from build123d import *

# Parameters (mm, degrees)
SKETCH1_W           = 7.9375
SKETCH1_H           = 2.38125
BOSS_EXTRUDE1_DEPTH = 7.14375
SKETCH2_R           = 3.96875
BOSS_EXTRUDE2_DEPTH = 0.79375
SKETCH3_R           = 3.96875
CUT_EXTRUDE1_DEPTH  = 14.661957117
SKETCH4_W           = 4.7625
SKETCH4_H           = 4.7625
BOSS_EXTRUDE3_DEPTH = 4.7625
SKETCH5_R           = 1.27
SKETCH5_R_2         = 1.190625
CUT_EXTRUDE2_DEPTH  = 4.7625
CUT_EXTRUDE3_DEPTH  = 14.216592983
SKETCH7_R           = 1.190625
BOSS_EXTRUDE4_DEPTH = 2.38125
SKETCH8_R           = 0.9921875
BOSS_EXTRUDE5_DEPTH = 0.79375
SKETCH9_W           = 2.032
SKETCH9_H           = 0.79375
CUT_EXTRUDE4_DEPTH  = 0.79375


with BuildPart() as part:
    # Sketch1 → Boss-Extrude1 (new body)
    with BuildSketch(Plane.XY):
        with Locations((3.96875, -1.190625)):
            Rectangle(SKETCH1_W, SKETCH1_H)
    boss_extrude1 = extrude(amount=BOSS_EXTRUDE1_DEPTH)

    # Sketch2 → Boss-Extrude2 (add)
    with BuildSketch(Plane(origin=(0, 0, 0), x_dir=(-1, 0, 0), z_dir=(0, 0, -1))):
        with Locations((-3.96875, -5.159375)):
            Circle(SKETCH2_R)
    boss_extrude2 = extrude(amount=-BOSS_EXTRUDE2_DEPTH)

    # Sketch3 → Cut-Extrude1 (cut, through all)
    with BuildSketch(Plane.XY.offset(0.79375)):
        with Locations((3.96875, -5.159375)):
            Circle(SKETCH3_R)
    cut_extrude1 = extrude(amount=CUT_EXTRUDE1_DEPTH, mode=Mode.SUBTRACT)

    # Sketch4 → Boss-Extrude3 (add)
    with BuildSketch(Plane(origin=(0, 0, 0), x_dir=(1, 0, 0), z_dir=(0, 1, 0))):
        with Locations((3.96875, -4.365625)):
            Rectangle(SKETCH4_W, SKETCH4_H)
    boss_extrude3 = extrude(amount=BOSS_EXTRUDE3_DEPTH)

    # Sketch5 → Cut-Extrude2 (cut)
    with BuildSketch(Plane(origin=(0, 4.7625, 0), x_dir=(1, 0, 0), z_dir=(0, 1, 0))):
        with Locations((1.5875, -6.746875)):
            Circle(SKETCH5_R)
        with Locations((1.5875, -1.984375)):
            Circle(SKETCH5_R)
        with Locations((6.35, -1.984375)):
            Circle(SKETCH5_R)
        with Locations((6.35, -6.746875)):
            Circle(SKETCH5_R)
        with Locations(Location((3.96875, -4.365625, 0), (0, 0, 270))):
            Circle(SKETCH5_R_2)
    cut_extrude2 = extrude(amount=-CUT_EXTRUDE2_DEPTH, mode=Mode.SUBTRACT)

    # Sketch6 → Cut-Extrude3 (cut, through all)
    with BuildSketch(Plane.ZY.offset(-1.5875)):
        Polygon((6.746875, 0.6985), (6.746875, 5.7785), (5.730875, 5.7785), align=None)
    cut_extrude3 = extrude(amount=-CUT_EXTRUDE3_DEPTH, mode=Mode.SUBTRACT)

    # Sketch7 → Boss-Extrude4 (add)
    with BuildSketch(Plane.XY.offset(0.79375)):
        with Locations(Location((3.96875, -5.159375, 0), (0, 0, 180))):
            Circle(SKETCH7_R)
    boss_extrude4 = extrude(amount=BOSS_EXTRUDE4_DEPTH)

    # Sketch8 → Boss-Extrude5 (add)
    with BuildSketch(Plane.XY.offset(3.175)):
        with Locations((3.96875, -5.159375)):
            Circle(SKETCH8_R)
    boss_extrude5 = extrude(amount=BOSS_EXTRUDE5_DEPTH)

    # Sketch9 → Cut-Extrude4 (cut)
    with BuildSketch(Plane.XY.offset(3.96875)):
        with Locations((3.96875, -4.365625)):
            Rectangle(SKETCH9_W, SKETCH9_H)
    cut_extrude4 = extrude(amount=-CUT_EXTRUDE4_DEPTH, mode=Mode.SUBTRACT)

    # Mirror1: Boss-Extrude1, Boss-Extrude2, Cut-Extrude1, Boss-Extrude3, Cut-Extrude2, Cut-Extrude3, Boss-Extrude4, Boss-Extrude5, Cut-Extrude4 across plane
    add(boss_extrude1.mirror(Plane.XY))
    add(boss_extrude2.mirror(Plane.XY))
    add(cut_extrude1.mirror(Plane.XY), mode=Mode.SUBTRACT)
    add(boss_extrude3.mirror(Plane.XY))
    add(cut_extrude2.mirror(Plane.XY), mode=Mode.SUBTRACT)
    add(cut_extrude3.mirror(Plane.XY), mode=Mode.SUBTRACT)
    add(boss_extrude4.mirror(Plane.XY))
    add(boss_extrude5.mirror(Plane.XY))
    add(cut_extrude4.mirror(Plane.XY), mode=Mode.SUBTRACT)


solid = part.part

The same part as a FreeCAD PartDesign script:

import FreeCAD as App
import Part
import Sketcher
Q = App.Units.Quantity

doc = App.newDocument("Part")
body = doc.addObject("PartDesign::Body", "Body")

sketch1 = doc.addObject("Sketcher::SketchObject", "Sketch")
body.addObject(sketch1)
sketch1.AttachmentSupport = (doc.XY_Plane, [""])
sketch1.MapMode = "FlatFace"
sketch1.addGeometry(Part.LineSegment(App.Vector(0, 0, 0), App.Vector(0, -2.38125, 0)), False)
sketch1.addGeometry(Part.LineSegment(App.Vector(0, -2.38125, 0), App.Vector(7.9375, -2.38125, 0)), False)
sketch1.addGeometry(Part.LineSegment(App.Vector(7.9375, -2.38125, 0), App.Vector(7.9375, 0, 0)), False)
sketch1.addGeometry(Part.LineSegment(App.Vector(7.9375, 0, 0), App.Vector(0, 0, 0)), False)
sketch1.addConstraint(Sketcher.Constraint("Coincident", 0, 2, 1, 1))
sketch1.addConstraint(Sketcher.Constraint("Coincident", 1, 2, 2, 1))
sketch1.addConstraint(Sketcher.Constraint("Coincident", 2, 2, 3, 1))
sketch1.addConstraint(Sketcher.Constraint("Coincident", 3, 2, 0, 1))
sketch1.addConstraint(Sketcher.Constraint("Vertical", 0))
sketch1.addConstraint(Sketcher.Constraint("Horizontal", 1))
sketch1.addConstraint(Sketcher.Constraint("Vertical", 2))
sketch1.addConstraint(Sketcher.Constraint("Horizontal", 3))
sketch1.addConstraint(Sketcher.Constraint("Coincident", 3, 2, -1, 1))
sketch1.addConstraint(Sketcher.Constraint("DistanceX", 1, 1, 1, 2, Q("0.3125 in")))
sketch1.addConstraint(Sketcher.Constraint("DistanceY", 0, 2, 0, 1, Q("0.09375 in")))
pad1 = doc.addObject("PartDesign::Pad", "Pad")
body.addObject(pad1)
pad1.Profile = sketch1
pad1.Length = Q("0.28125 in")

sketch2 = doc.addObject("Sketcher::SketchObject", "Sketch001")
body.addObject(sketch2)
sketch2.AttachmentSupport = (doc.XY_Plane, [""])
sketch2.MapMode = "FlatFace"
sketch2.addGeometry(Part.Circle(App.Vector(3.96875, -5.159375, 0), App.Vector(0, 0, 1), 3.96875), False)
sketch2.addConstraint(Sketcher.Constraint("Diameter", 0, Q("0.3125 in")))
sketch2.addConstraint(Sketcher.Constraint("DistanceX", -1, 1, 0, 3, Q("0.15625 in")))
sketch2.addConstraint(Sketcher.Constraint("DistanceY", 0, 3, -1, 1, Q("0.203125 in")))
pad2 = doc.addObject("PartDesign::Pad", "Pad001")
body.addObject(pad2)
pad2.Profile = sketch2
pad2.Length = Q("0.03125 in")

sketch3 = doc.addObject("Sketcher::SketchObject", "Sketch002")
body.addObject(sketch3)
sketch3.AttachmentSupport = (doc.XY_Plane, [""])
sketch3.MapMode = "FlatFace"
sketch3.AttachmentOffset = App.Placement(App.Vector(0, 0, 0.03125 * 25.4), App.Rotation())
sketch3.addGeometry(Part.Circle(App.Vector(3.96875, -5.159375, 0), App.Vector(0, 0, 1), 3.96875), False)
sketch3.addConstraint(Sketcher.Constraint("Diameter", 0, Q("0.3125 in")))
sketch3.addConstraint(Sketcher.Constraint("DistanceX", -1, 1, 0, 3, Q("0.15625 in")))
sketch3.addConstraint(Sketcher.Constraint("DistanceY", 0, 3, -1, 1, Q("0.203125 in")))
pocket1 = doc.addObject("PartDesign::Pocket", "Pocket")
body.addObject(pocket1)
pocket1.Profile = sketch3
pocket1.Type = "ThroughAll"
pocket1.Reversed = True

sketch4 = doc.addObject("Sketcher::SketchObject", "Sketch003")
body.addObject(sketch4)
sketch4.AttachmentSupport = (doc.XZ_Plane, [""])
sketch4.MapMode = "FlatFace"
sketch4.addGeometry(Part.LineSegment(App.Vector(1.5875, 1.984375, 0), App.Vector(1.5875, 6.746875, 0)), False)
sketch4.addGeometry(Part.LineSegment(App.Vector(1.5875, 6.746875, 0), App.Vector(6.35, 6.746875, 0)), False)
sketch4.addGeometry(Part.LineSegment(App.Vector(6.35, 6.746875, 0), App.Vector(6.35, 1.984375, 0)), False)
sketch4.addGeometry(Part.LineSegment(App.Vector(6.35, 1.984375, 0), App.Vector(1.5875, 1.984375, 0)), False)
sketch4.addConstraint(Sketcher.Constraint("Coincident", 0, 2, 1, 1))
sketch4.addConstraint(Sketcher.Constraint("Coincident", 1, 2, 2, 1))
sketch4.addConstraint(Sketcher.Constraint("Coincident", 2, 2, 3, 1))
sketch4.addConstraint(Sketcher.Constraint("Coincident", 3, 2, 0, 1))
sketch4.addConstraint(Sketcher.Constraint("Vertical", 0))
sketch4.addConstraint(Sketcher.Constraint("Horizontal", 1))
sketch4.addConstraint(Sketcher.Constraint("Vertical", 2))
sketch4.addConstraint(Sketcher.Constraint("Horizontal", 3))
sketch4.addConstraint(Sketcher.Constraint("Equal", 3, 0))
sketch4.addConstraint(Sketcher.Constraint("DistanceX", 1, 1, 1, 2, Q("0.1875 in")))
sketch4.addConstraint(Sketcher.Constraint("DistanceX", -1, 1, 1, 2, Q("0.25 in")))
sketch4.addConstraint(Sketcher.Constraint("DistanceY", -1, 1, 0, 2, Q("0.265625 in")))
pad3 = doc.addObject("PartDesign::Pad", "Pad002")
body.addObject(pad3)
pad3.Profile = sketch4
pad3.Length = Q("0.1875 in")
pad3.Reversed = True

sketch5 = doc.addObject("Sketcher::SketchObject", "Sketch004")
body.addObject(sketch5)
sketch5.AttachmentSupport = (doc.XZ_Plane, [""])
sketch5.MapMode = "FlatFace"
sketch5.AttachmentOffset = App.Placement(App.Vector(0, 0, -0.1875 * 25.4), App.Rotation())
sketch5.addGeometry(Part.Circle(App.Vector(1.5875, 6.746875, 0), App.Vector(0, 0, 1), 1.27), False)
sketch5.addGeometry(Part.Circle(App.Vector(1.5875, 1.984375, 0), App.Vector(0, 0, 1), 1.27), False)
sketch5.addGeometry(Part.Circle(App.Vector(6.35, 1.984375, 0), App.Vector(0, 0, 1), 1.27), False)
sketch5.addGeometry(Part.Circle(App.Vector(6.35, 6.746875, 0), App.Vector(0, 0, 1), 1.27), False)
sketch5.addGeometry(Part.Circle(App.Vector(3.96875, 4.365625, 0), App.Vector(0, 0, 1), 1.190625), False)
sketch5.addConstraint(Sketcher.Constraint("Equal", 0, 1))
sketch5.addConstraint(Sketcher.Constraint("Equal", 1, 2))
sketch5.addConstraint(Sketcher.Constraint("Equal", 2, 3))
sketch5.addConstraint(Sketcher.Constraint("Horizontal", 1, 3, 2, 3))
sketch5.addConstraint(Sketcher.Constraint("Horizontal", 0, 3, 3, 3))
sketch5.addConstraint(Sketcher.Constraint("Vertical", 0, 3, 1, 3))
sketch5.addConstraint(Sketcher.Constraint("Vertical", 2, 3, 3, 3))
sketch5.addConstraint(Sketcher.Constraint("Diameter", 0, Q("0.1 in")))
sketch5.addConstraint(Sketcher.Constraint("Diameter", 4, Q("0.09375 in")))
sketch5.addConstraint(Sketcher.Constraint("DistanceX", -1, 1, 2, 3, Q("0.25 in")))
sketch5.addConstraint(Sketcher.Constraint("DistanceX", -1, 1, 0, 3, Q("0.0625 in")))
sketch5.addConstraint(Sketcher.Constraint("DistanceY", -1, 1, 0, 3, Q("0.265625 in")))
sketch5.addConstraint(Sketcher.Constraint("DistanceY", -1, 1, 1, 3, Q("0.078125 in")))
sketch5.addConstraint(Sketcher.Constraint("DistanceX", -1, 1, 4, 3, Q("0.15625 in")))
sketch5.addConstraint(Sketcher.Constraint("DistanceY", -1, 1, 4, 3, Q("0.171875 in")))
pocket2 = doc.addObject("PartDesign::Pocket", "Pocket001")
body.addObject(pocket2)
pocket2.Profile = sketch5
pocket2.Length = Q("0.1875 in")
pocket2.Reversed = True

sketch6 = doc.addObject("Sketcher::SketchObject", "Sketch005")
body.addObject(sketch6)
sketch6.AttachmentSupport = (doc.YZ_Plane, [""])
sketch6.MapMode = "FlatFace"
sketch6.AttachmentOffset = App.Placement(App.Vector(0, 0, 0.0625 * 25.4), App.Rotation())
sketch6.addGeometry(Part.LineSegment(App.Vector(0.6985, 6.746875, 0), App.Vector(5.7785, 6.746875, 0)), False)
sketch6.addGeometry(Part.LineSegment(App.Vector(5.7785, 6.746875, 0), App.Vector(5.7785, 5.730875, 0)), False)
sketch6.addGeometry(Part.LineSegment(App.Vector(5.7785, 5.730875, 0), App.Vector(0.6985, 6.746875, 0)), False)
sketch6.addConstraint(Sketcher.Constraint("Coincident", 0, 2, 1, 1))
sketch6.addConstraint(Sketcher.Constraint("Coincident", 1, 2, 2, 1))
sketch6.addConstraint(Sketcher.Constraint("Coincident", 2, 2, 0, 1))
sketch6.addConstraint(Sketcher.Constraint("Horizontal", 0))
sketch6.addConstraint(Sketcher.Constraint("Vertical", 1))
sketch6.addConstraint(Sketcher.Constraint("DistanceX", 0, 1, 0, 2, Q("0.2 in")))
sketch6.addConstraint(Sketcher.Constraint("DistanceY", 1, 2, 1, 1, Q("0.04 in")))
sketch6.addConstraint(Sketcher.Constraint("DistanceY", -1, 1, 0, 2, Q("0.265625 in")))
sketch6.addConstraint(Sketcher.Constraint("DistanceX", -1, 1, 0, 2, Q("0.2275 in")))
pocket3 = doc.addObject("PartDesign::Pocket", "Pocket002")
body.addObject(pocket3)
pocket3.Profile = sketch6
pocket3.Type = "ThroughAll"
pocket3.Reversed = True

sketch7 = doc.addObject("Sketcher::SketchObject", "Sketch006")
body.addObject(sketch7)
sketch7.AttachmentSupport = (doc.XY_Plane, [""])
sketch7.MapMode = "FlatFace"
sketch7.AttachmentOffset = App.Placement(App.Vector(0, 0, 0.03125 * 25.4), App.Rotation())
sketch7.addGeometry(Part.Circle(App.Vector(3.96875, -5.159375, 0), App.Vector(0, 0, 1), 1.190625), False)
sketch7.addConstraint(Sketcher.Constraint("Diameter", 0, Q("0.09375 in")))
sketch7.addConstraint(Sketcher.Constraint("DistanceX", -1, 1, 0, 3, Q("0.15625 in")))
sketch7.addConstraint(Sketcher.Constraint("DistanceY", 0, 3, -1, 1, Q("0.203125 in")))
pad4 = doc.addObject("PartDesign::Pad", "Pad003")
body.addObject(pad4)
pad4.Profile = sketch7
pad4.Length = Q("0.09375 in")

sketch8 = doc.addObject("Sketcher::SketchObject", "Sketch007")
body.addObject(sketch8)
sketch8.AttachmentSupport = (doc.XY_Plane, [""])
sketch8.MapMode = "FlatFace"
sketch8.AttachmentOffset = App.Placement(App.Vector(0, 0, 0.125 * 25.4), App.Rotation())
sketch8.addGeometry(Part.Circle(App.Vector(3.96875, -5.159375, 0), App.Vector(0, 0, 1), 0.992188), False)
sketch8.addConstraint(Sketcher.Constraint("Diameter", 0, Q("0.078125 in")))
sketch8.addConstraint(Sketcher.Constraint("DistanceX", -1, 1, 0, 3, Q("0.15625 in")))
sketch8.addConstraint(Sketcher.Constraint("DistanceY", 0, 3, -1, 1, Q("0.203125 in")))
pad5 = doc.addObject("PartDesign::Pad", "Pad004")
body.addObject(pad5)
pad5.Profile = sketch8
pad5.Length = Q("0.03125 in")

sketch9 = doc.addObject("Sketcher::SketchObject", "Sketch008")
body.addObject(sketch9)
sketch9.AttachmentSupport = (doc.XY_Plane, [""])
sketch9.MapMode = "FlatFace"
sketch9.AttachmentOffset = App.Placement(App.Vector(0, 0, 0.15625 * 25.4), App.Rotation())
sketch9.addGeometry(Part.LineSegment(App.Vector(2.95275, -3.96875, 0), App.Vector(2.95275, -4.7625, 0)), False)
sketch9.addGeometry(Part.LineSegment(App.Vector(2.95275, -4.7625, 0), App.Vector(4.98475, -4.7625, 0)), False)
sketch9.addGeometry(Part.LineSegment(App.Vector(4.98475, -4.7625, 0), App.Vector(4.98475, -3.96875, 0)), False)
sketch9.addGeometry(Part.LineSegment(App.Vector(4.98475, -3.96875, 0), App.Vector(2.95275, -3.96875, 0)), False)
sketch9.addConstraint(Sketcher.Constraint("Coincident", 0, 2, 1, 1))
sketch9.addConstraint(Sketcher.Constraint("Coincident", 1, 2, 2, 1))
sketch9.addConstraint(Sketcher.Constraint("Coincident", 2, 2, 3, 1))
sketch9.addConstraint(Sketcher.Constraint("Coincident", 3, 2, 0, 1))
sketch9.addConstraint(Sketcher.Constraint("Vertical", 0))
sketch9.addConstraint(Sketcher.Constraint("Horizontal", 1))
sketch9.addConstraint(Sketcher.Constraint("Vertical", 2))
sketch9.addConstraint(Sketcher.Constraint("Horizontal", 3))
sketch9.addConstraint(Sketcher.Constraint("DistanceX", 1, 1, 1, 2, Q("0.08 in")))
sketch9.addConstraint(Sketcher.Constraint("DistanceY", 0, 2, 0, 1, Q("0.03125 in")))
sketch9.addConstraint(Sketcher.Constraint("DistanceY", 0, 2, -1, 1, Q("0.1875 in")))
sketch9.addConstraint(Sketcher.Constraint("DistanceX", -1, 1, 0, 2, 2.95275))
pocket4 = doc.addObject("PartDesign::Pocket", "Pocket003")
body.addObject(pocket4)
pocket4.Profile = sketch9
pocket4.Length = Q("0.03125 in")
doc.recompute()

mirrored = doc.addObject("PartDesign::Mirrored", "Mirrored")
body.addObject(mirrored)
mirrored.Originals = [pad1, pad2, pocket1, pad3, pocket2, pocket3, pad4, pad5, pocket4]
mirrored.MirrorPlane = (doc.XY_Plane, [""])
body.Tip = mirrored

doc.recompute()
